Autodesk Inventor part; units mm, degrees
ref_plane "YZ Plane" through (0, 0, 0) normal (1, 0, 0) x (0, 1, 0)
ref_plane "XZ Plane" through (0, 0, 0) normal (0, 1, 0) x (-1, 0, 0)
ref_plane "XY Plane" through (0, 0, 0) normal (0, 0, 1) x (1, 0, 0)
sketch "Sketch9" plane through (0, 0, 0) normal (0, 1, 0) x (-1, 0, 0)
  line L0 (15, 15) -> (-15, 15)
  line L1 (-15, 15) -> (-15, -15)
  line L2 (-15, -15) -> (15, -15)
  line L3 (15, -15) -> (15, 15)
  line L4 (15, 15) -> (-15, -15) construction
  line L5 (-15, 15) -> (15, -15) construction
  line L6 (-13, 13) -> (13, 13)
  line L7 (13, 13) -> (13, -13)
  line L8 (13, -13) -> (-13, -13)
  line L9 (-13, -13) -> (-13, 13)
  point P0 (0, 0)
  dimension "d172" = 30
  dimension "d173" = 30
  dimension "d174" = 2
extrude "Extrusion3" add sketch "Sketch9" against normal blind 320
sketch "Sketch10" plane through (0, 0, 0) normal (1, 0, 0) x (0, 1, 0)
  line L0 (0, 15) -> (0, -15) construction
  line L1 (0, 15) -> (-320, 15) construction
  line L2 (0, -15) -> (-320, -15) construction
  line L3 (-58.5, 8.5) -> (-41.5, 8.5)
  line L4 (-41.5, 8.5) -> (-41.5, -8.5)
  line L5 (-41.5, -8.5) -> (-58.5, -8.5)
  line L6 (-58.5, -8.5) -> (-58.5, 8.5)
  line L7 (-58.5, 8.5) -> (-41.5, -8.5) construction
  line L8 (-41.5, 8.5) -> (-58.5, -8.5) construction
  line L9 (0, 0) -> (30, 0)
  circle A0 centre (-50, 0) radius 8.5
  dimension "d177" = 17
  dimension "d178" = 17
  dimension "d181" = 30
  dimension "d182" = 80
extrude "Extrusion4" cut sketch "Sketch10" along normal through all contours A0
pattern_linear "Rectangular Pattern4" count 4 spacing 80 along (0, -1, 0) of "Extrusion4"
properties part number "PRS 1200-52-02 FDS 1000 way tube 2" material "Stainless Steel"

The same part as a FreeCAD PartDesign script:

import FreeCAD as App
import Part
import Sketcher
from FreeCAD import Vector
Q = App.Units.Quantity


def add_polygon(sketch, points):
    """Adds a closed chain of lines whose ends are joined by coincident constraints."""
    first, n = sketch.GeometryCount, len(points)
    for a, b in zip(points, points[1:] + points[:1]):
        sketch.addGeometry(Part.LineSegment(App.Vector(*a, 0), App.Vector(*b, 0)), False)
    for i in range(n):
        sketch.addConstraint(Sketcher.Constraint("Coincident", first + i, 2, first + (i + 1) % n, 1))

doc = App.newDocument("Part")
params = doc.addObject("Spreadsheet::Sheet", "Params")
for row, (alias, value) in enumerate([
    ("sketch1_width", "30 mm"),
    ("pad1_length", "320 mm"),
    ("sketch2_diameter", "17 mm"),
    ("linearpattern_pitch", "80 mm"),
], start=1):
    params.set(f"A{row}", alias)
    params.set(f"B{row}", "=" + value)
    params.setAlias(f"B{row}", alias)

body = doc.addObject("PartDesign::Body", "Body")

# Sketch on XZ plane
sketch1 = doc.addObject("Sketcher::SketchObject", "Sketch")
body.addObject(sketch1)
sketch1.AttachmentSupport = (doc.XZ_Plane, [""])
sketch1.MapMode = "FlatFace"
add_polygon(sketch1, [(-15, -15), (-15, 15), (15, 15), (15, -15)])  # lines 0-3
add_polygon(sketch1, [(13, -13), (13, 13), (-13, 13), (-13, -13)])  # lines 4-7
sketch1.addConstraint(Sketcher.Constraint("Vertical", 0))
sketch1.addConstraint(Sketcher.Constraint("Horizontal", 1))
sketch1.addConstraint(Sketcher.Constraint("Vertical", 2))
sketch1.addConstraint(Sketcher.Constraint("Horizontal", 3))
sketch1.addConstraint(Sketcher.Constraint("Vertical", 4))
sketch1.addConstraint(Sketcher.Constraint("Horizontal", 5))
sketch1.addConstraint(Sketcher.Constraint("Vertical", 6))
sketch1.addConstraint(Sketcher.Constraint("Horizontal", 7))
sketch1.addConstraint(Sketcher.Constraint("Symmetric", 0, 2, 2, 2, -1, 1))
sketch1.addConstraint(Sketcher.Constraint("Symmetric", 4, 2, 6, 2, -1, 1))
sketch1.addConstraint(Sketcher.Constraint("Equal", 3, 0))
sketch1.addConstraint(Sketcher.Constraint("Equal", 7, 4))
sketch1.addConstraint(Sketcher.Constraint("DistanceX", 1, 1, 1, 2, Q("30 mm")))
sketch1.addConstraint(Sketcher.Constraint("DistanceX", 4, 2, 1, 2, Q("2 mm")))
sketch1.setExpression("Constraints[20]", "Params.sketch1_width")
pad1 = doc.addObject("PartDesign::Pad", "Pad")
body.addObject(pad1)
pad1.Profile = sketch1
pad1.setExpression("Length", "Params.pad1_length")

# Sketch on YZ plane
sketch2 = doc.addObject("Sketcher::SketchObject", "Sketch001")
body.addObject(sketch2)
sketch2.AttachmentSupport = (doc.YZ_Plane, [""])
sketch2.MapMode = "FlatFace"
sketch2.addGeometry(Part.Circle(Vector(-50, 0, 0), Vector(0, 0, 1), 8), False)
sketch2.addConstraint(Sketcher.Constraint("PointOnObject", 0, 3, -1))
sketch2.addConstraint(Sketcher.Constraint("Diameter", 0, Q("17 mm")))
sketch2.addConstraint(Sketcher.Constraint("DistanceX", 0, 3, -1, 1, Q("50 mm")))
sketch2.setExpression("Constraints[1]", "Params.sketch2_diameter")
pocket1 = doc.addObject("PartDesign::Pocket", "Pocket")
body.addObject(pocket1)
pocket1.Profile = sketch2
pocket1.Type = "ThroughAll"
pocket1.Reversed = True
doc.recompute()

linearpattern = doc.addObject("PartDesign::LinearPattern", "LinearPattern")
body.addObject(linearpattern)
linearpattern.Originals = [pocket1]
linearpattern.Direction = (doc.Y_Axis, [""])
linearpattern.Mode = "offset"
linearpattern.setExpression("Offset", "Params.linearpattern_pitch")
linearpattern.Occurrences = 4
linearpattern.Reversed = True
body.Tip = linearpattern

doc.recompute()
